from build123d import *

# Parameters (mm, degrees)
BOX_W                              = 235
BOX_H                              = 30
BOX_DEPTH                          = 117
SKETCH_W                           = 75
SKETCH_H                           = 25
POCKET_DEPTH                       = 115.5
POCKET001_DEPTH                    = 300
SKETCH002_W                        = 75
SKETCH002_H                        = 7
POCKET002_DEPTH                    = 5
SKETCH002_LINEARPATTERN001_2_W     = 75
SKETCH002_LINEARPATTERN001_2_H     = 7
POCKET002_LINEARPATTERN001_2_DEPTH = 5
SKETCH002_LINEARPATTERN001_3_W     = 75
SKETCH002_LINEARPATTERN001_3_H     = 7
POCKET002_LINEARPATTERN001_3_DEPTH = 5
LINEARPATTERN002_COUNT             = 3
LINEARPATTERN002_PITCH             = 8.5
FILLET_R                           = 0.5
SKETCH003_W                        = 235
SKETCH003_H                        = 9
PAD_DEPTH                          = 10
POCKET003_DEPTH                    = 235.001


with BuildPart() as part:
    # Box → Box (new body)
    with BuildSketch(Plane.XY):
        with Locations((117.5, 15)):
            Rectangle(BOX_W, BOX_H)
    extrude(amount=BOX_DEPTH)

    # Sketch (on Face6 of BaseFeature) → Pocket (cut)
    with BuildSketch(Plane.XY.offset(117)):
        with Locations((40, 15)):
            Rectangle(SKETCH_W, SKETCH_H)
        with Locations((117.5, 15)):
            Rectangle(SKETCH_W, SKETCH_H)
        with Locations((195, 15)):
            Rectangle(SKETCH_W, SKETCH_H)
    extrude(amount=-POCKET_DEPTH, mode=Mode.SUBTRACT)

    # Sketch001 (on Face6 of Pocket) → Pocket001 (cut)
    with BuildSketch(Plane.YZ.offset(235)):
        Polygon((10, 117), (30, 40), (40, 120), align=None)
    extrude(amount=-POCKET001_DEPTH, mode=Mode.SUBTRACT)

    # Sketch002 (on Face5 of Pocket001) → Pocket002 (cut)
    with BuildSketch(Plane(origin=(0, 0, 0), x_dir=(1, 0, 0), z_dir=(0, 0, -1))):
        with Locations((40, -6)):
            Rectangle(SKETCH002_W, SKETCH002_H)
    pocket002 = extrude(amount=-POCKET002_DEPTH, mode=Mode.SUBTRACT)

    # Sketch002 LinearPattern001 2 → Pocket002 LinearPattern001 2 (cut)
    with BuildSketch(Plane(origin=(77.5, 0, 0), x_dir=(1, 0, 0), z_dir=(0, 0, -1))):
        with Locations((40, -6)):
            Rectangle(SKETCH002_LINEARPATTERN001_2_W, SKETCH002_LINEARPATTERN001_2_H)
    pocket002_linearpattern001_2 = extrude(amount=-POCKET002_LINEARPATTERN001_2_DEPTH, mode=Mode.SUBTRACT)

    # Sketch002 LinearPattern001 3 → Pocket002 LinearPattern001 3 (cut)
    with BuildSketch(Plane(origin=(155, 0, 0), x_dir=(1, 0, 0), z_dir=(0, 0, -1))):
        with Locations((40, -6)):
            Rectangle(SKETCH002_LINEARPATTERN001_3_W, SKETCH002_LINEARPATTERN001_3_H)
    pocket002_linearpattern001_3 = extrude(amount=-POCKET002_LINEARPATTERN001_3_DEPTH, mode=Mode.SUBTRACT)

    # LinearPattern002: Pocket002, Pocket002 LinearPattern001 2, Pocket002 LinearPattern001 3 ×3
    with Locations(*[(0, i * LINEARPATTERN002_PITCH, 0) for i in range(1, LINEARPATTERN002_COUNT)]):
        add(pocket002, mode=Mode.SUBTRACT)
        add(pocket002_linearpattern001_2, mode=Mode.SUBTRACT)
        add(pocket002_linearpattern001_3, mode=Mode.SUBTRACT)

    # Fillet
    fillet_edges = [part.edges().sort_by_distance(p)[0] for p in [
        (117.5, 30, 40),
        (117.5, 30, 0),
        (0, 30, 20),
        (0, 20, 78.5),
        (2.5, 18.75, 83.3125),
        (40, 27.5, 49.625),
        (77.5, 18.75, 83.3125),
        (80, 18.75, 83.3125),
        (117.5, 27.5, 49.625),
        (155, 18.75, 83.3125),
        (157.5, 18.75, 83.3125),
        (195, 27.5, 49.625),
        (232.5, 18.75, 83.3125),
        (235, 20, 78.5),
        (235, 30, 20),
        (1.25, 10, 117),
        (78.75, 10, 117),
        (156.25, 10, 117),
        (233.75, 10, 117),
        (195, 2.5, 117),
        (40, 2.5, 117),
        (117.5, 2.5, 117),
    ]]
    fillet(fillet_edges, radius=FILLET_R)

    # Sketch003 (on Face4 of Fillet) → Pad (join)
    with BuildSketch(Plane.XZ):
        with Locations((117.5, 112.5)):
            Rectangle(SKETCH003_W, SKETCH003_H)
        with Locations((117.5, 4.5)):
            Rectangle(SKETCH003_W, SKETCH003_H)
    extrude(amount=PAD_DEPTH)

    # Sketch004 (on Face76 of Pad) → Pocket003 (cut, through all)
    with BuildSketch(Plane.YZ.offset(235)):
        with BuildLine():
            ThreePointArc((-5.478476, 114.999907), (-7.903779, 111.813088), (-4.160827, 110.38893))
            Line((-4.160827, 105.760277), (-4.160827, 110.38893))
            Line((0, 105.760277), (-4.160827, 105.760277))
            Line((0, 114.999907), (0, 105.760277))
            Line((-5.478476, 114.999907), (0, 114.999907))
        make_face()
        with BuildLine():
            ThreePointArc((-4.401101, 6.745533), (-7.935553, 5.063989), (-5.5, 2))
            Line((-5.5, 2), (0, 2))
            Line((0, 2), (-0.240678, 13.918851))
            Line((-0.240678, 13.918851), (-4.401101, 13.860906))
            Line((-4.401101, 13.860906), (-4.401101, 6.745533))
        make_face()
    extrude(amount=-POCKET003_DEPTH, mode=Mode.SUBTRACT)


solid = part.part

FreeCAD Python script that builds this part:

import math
import FreeCAD as App
import Part
import Sketcher


def edges_at(feature, points):
    """Names of the edges that pass closest to the given points."""
    edges = feature.Shape.Edges
    near = lambda p: min(range(len(edges)), key=lambda i: edges[i].distToShape(Part.Vertex(*p))[0])
    return sorted({f"Edge{near(p) + 1}" for p in points})

doc = App.newDocument("Part")
body = doc.addObject("PartDesign::Body", "Body")

# Sketch on XY plane
sketch1 = body.newObject("Sketcher::SketchObject", "Sketch")
sketch1.AttachmentSupport = (doc.getObject("XY_Plane"), [""])
sketch1.MapMode = "FlatFace"
sketch1.addGeometry([
    Part.LineSegment(App.Vector(0, 30, 0), App.Vector(0, 0, 0)),
    Part.LineSegment(App.Vector(0, 0, 0), App.Vector(235, 0, 0)),
    Part.LineSegment(App.Vector(235, 0, 0), App.Vector(235, 30, 0)),
    Part.LineSegment(App.Vector(235, 30, 0), App.Vector(0, 30, 0)),
], False)
sketch1.addConstraint([
    Sketcher.Constraint("Coincident", 0, 2, 1, 1),
    Sketcher.Constraint("Coincident", 1, 2, 2, 1),
    Sketcher.Constraint("Coincident", 2, 2, 3, 1),
    Sketcher.Constraint("Coincident", 3, 2, 0, 1),
    Sketcher.Constraint("Vertical", 0),
    Sketcher.Constraint("Horizontal", 1),
    Sketcher.Constraint("Vertical", 2),
    Sketcher.Constraint("Horizontal", 3),
    Sketcher.Constraint("Coincident", 0, 2, -1, 1),
    Sketcher.Constraint("DistanceX", 1, 1, 1, 2, 235.0),
    Sketcher.Constraint("DistanceY", 0, 2, 0, 1, 30.0),
])
pad1 = body.newObject("PartDesign::Pad", "Pad")
pad1.Profile = sketch1
pad1.Length = 117

# Sketch on XY plane
sketch2 = body.newObject("Sketcher::SketchObject", "Sketch001")
sketch2.AttachmentSupport = (doc.getObject("XY_Plane"), [""])
sketch2.MapMode = "FlatFace"
sketch2.AttachmentOffset = App.Placement(App.Vector(0, 0, 117), App.Rotation())
sketch2.addGeometry([
    Part.LineSegment(App.Vector(2, 28, 0), App.Vector(2, 2, 0)),  # 0
    Part.LineSegment(App.Vector(2, 2, 0), App.Vector(78, 2, 0)),  # 1
    Part.LineSegment(App.Vector(78, 2, 0), App.Vector(78, 28, 0)),  # 2
    Part.LineSegment(App.Vector(78, 28, 0), App.Vector(2, 28, 0)),  # 3
    Part.LineSegment(App.Vector(80, 28, 0), App.Vector(80, 2, 0)),  # 4
    Part.LineSegment(App.Vector(80, 2, 0), App.Vector(155, 2, 0)),  # 5
    Part.LineSegment(App.Vector(155, 2, 0), App.Vector(155, 28, 0)),  # 6
    Part.LineSegment(App.Vector(155, 28, 0), App.Vector(80, 28, 0)),  # 7
    Part.LineSegment(App.Vector(158, 28, 0), App.Vector(158, 2, 0)),  # 8
    Part.LineSegment(App.Vector(158, 2, 0), App.Vector(232, 2, 0)),  # 9
    Part.LineSegment(App.Vector(232, 2, 0), App.Vector(232, 28, 0)),  # 10
    Part.LineSegment(App.Vector(232, 28, 0), App.Vector(158, 28, 0)),  # 11
], False)
sketch2.addConstraint([
    Sketcher.Constraint("Coincident", 0, 2, 1, 1),
    Sketcher.Constraint("Coincident", 1, 2, 2, 1),
    Sketcher.Constraint("Coincident", 2, 2, 3, 1),
    Sketcher.Constraint("Coincident", 3, 2, 0, 1),
    Sketcher.Constraint("Coincident", 4, 2, 5, 1),
    Sketcher.Constraint("Coincident", 5, 2, 6, 1),
    Sketcher.Constraint("Coincident", 6, 2, 7, 1),
    Sketcher.Constraint("Coincident", 7, 2, 4, 1),
    Sketcher.Constraint("Coincident", 8, 2, 9, 1),
    Sketcher.Constraint("Coincident", 9, 2, 10, 1),
    Sketcher.Constraint("Coincident", 10, 2, 11, 1),
    Sketcher.Constraint("Coincident", 11, 2, 8, 1),
    Sketcher.Constraint("Vertical", 0),
    Sketcher.Constraint("Horizontal", 1),
    Sketcher.Constraint("Vertical", 2),
    Sketcher.Constraint("Horizontal", 3),
    Sketcher.Constraint("Vertical", 4),
    Sketcher.Constraint("Horizontal", 5),
    Sketcher.Constraint("Vertical", 6),
    Sketcher.Constraint("Horizontal", 7),
    Sketcher.Constraint("Vertical", 8),
    Sketcher.Constraint("Horizontal", 9),
    Sketcher.Constraint("Vertical", 10),
    Sketcher.Constraint("Horizontal", 11),
    Sketcher.Constraint("Horizontal", 1, 2, 4, 2),
    Sketcher.Constraint("Horizontal", 3, 2, 6, 2),
    Sketcher.Constraint("Horizontal", 5, 2, 8, 2),
    Sketcher.Constraint("Horizontal", 7, 2, 10, 2),
    Sketcher.Constraint("Equal", 3, 5),
    Sketcher.Constraint("Equal", 7, 9),
    Sketcher.Constraint("DistanceX", 1, 1, 1, 2, 75.0),
    Sketcher.Constraint("DistanceY", 0, 2, 0, 1, 25.0),
    Sketcher.Constraint("DistanceX", -1, 1, 4, 2, 80.0),
    Sketcher.Constraint("DistanceX", 1, 2, 8, 2, 80.0),
    Sketcher.Constraint("DistanceX", -1, 1, 0, 2, 2.5),
    Sketcher.Constraint("DistanceY", -1, 1, 0, 2, 2.5),
])
pocket1 = body.newObject("PartDesign::Pocket", "Pocket")
pocket1.Profile = sketch2
pocket1.Length = 115.5

# Sketch on YZ plane
sketch3 = body.newObject("Sketcher::SketchObject", "Sketch002")
sketch3.AttachmentSupport = (doc.getObject("YZ_Plane"), [""])
sketch3.MapMode = "FlatFace"
sketch3.AttachmentOffset = App.Placement(App.Vector(0, 0, 235), App.Rotation())
sketch3.addGeometry([
    Part.LineSegment(App.Vector(10, 117, 0), App.Vector(30, 40, 0)),
    Part.LineSegment(App.Vector(30, 40, 0), App.Vector(40, 120, 0)),
    Part.LineSegment(App.Vector(40, 120, 0), App.Vector(10, 117, 0)),
], False)
sketch3.addConstraint([
    Sketcher.Constraint("Coincident", 0, 2, 1, 1),
    Sketcher.Constraint("Coincident", 1, 2, 2, 1),
    Sketcher.Constraint("Coincident", 2, 2, 0, 1),
    Sketcher.Constraint("DistanceX", -1, 1, 0, 2, 30.0),
    Sketcher.Constraint("DistanceY", -1, 1, 0, 2, 40.0),
    Sketcher.Constraint("DistanceX", -1, 1, 1, 2, 40.0),
    Sketcher.Constraint("DistanceY", -1, 1, 1, 2, 120.0),
    Sketcher.Constraint("DistanceX", -1, 1, 2, 2, 10.0),
    Sketcher.Constraint("DistanceY", -1, 1, 2, 2, 117.0),
])
pocket2 = body.newObject("PartDesign::Pocket", "Pocket001")
pocket2.Profile = sketch3
pocket2.Length = 300

# Sketch on XY plane
sketch4 = body.newObject("Sketcher::SketchObject", "Sketch003")
sketch4.AttachmentSupport = (doc.getObject("XY_Plane"), [""])
sketch4.MapMode = "FlatFace"
sketch4.addGeometry([
    Part.LineSegment(App.Vector(2, 2, 0), App.Vector(2, 10, 0)),
    Part.LineSegment(App.Vector(2, 10, 0), App.Vector(78, 10, 0)),
    Part.LineSegment(App.Vector(78, 10, 0), App.Vector(78, 2, 0)),
    Part.LineSegment(App.Vector(78, 2, 0), App.Vector(2, 2, 0)),
], False)
sketch4.addConstraint([
    Sketcher.Constraint("Coincident", 0, 2, 1, 1),
    Sketcher.Constraint("Coincident", 1, 2, 2, 1),
    Sketcher.Constraint("Coincident", 2, 2, 3, 1),
    Sketcher.Constraint("Coincident", 3, 2, 0, 1),
    Sketcher.Constraint("Vertical", 0),
    Sketcher.Constraint("Horizontal", 1),
    Sketcher.Constraint("Vertical", 2),
    Sketcher.Constraint("Horizontal", 3),
    Sketcher.Constraint("DistanceX", 1, 1, 1, 2, 75.0),
    Sketcher.Constraint("DistanceY", 0, 1, 0, 2, 7.0),
    Sketcher.Constraint("DistanceX", -1, 1, 0, 2, 2.5),
    Sketcher.Constraint("DistanceY", -1, 1, 0, 2, 9.5),
])
pocket3 = body.newObject("PartDesign::Pocket", "Pocket002")
pocket3.Profile = sketch4
pocket3.Length = 5
pocket3.Reversed = True

# Sketch on XY plane
sketch5 = body.newObject("Sketcher::SketchObject", "Sketch004")
sketch5.AttachmentSupport = (doc.getObject("XY_Plane"), [""])
sketch5.MapMode = "FlatFace"
sketch5.addGeometry([
    Part.LineSegment(App.Vector(80, 2, 0), App.Vector(80, 10, 0)),
    Part.LineSegment(App.Vector(80, 10, 0), App.Vector(155, 10, 0)),
    Part.LineSegment(App.Vector(155, 10, 0), App.Vector(155, 2, 0)),
    Part.LineSegment(App.Vector(155, 2, 0), App.Vector(80, 2, 0)),
], False)
sketch5.addConstraint([
    Sketcher.Constraint("Coincident", 0, 2, 1, 1),
    Sketcher.Constraint("Coincident", 1, 2, 2, 1),
    Sketcher.Constraint("Coincident", 2, 2, 3, 1),
    Sketcher.Constraint("Coincident", 3, 2, 0, 1),
    Sketcher.Constraint("Vertical", 0),
    Sketcher.Constraint("Horizontal", 1),
    Sketcher.Constraint("Vertical", 2),
    Sketcher.Constraint("Horizontal", 3),
    Sketcher.Constraint("DistanceX", 1, 1, 1, 2, 75.0),
    Sketcher.Constraint("DistanceY", 0, 1, 0, 2, 7.0),
    Sketcher.Constraint("DistanceX", -1, 1, 0, 2, 80.0),
    Sketcher.Constraint("DistanceY", -1, 1, 0, 2, 9.5),
])
pocket4 = body.newObject("PartDesign::Pocket", "Pocket003")
pocket4.Profile = sketch5
pocket4.Length = 5
pocket4.Reversed = True

# Sketch on XY plane
sketch6 = body.newObject("Sketcher::SketchObject", "Sketch005")
sketch6.AttachmentSupport = (doc.getObject("XY_Plane"), [""])
sketch6.MapMode = "FlatFace"
sketch6.addGeometry([
    Part.LineSegment(App.Vector(158, 2, 0), App.Vector(158, 10, 0)),
    Part.LineSegment(App.Vector(158, 10, 0), App.Vector(232, 10, 0)),
    Part.LineSegment(App.Vector(232, 10, 0), App.Vector(232, 2, 0)),
    Part.LineSegment(App.Vector(232, 2, 0), App.Vector(158, 2, 0)),
], False)
sketch6.addConstraint([
    Sketcher.Constraint("Coincident", 0, 2, 1, 1),
    Sketcher.Constraint("Coincident", 1, 2, 2, 1),
    Sketcher.Constraint("Coincident", 2, 2, 3, 1),
    Sketcher.Constraint("Coincident", 3, 2, 0, 1),
    Sketcher.Constraint("Vertical", 0),
    Sketcher.Constraint("Horizontal", 1),
    Sketcher.Constraint("Vertical", 2),
    Sketcher.Constraint("Horizontal", 3),
    Sketcher.Constraint("DistanceX", 1, 1, 1, 2, 75.0),
    Sketcher.Constraint("DistanceY", 0, 1, 0, 2, 7.0),
    Sketcher.Constraint("DistanceX", -1, 1, 0, 2, 157.5),
    Sketcher.Constraint("DistanceY", -1, 1, 0, 2, 9.5),
])
pocket5 = body.newObject("PartDesign::Pocket", "Pocket004")
pocket5.Profile = sketch6
pocket5.Length = 5
pocket5.Reversed = True
doc.recompute()

linearpattern = body.newObject("PartDesign::LinearPattern", "LinearPattern")
linearpattern.Originals = [pocket3, pocket4, pocket5]
linearpattern.Direction = (doc.getObject("Y_Axis"), [""])
linearpattern.Mode = "offset"
linearpattern.Offset = 8.5
linearpattern.Occurrences = 3
body.Tip = linearpattern
doc.recompute()

fillet = body.newObject("PartDesign::Fillet", "Fillet")
fillet.Base = (linearpattern, edges_at(linearpattern, [
    (117.5, 30, 40),
    (117.5, 30, 0),
    (0, 30, 20),
    (0, 20, 78.5),
    (2.5, 18.75, 83.312),
    (40, 27.5, 49.625),
    (77.5, 18.75, 83.312),
    (80, 18.75, 83.312),
    (117.5, 27.5, 49.625),
    (155, 18.75, 83.312),
    (157.5, 18.75, 83.312),
    (195, 27.5, 49.625),
    (232.5, 18.75, 83.312),
    (235, 20, 78.5),
    (235, 30, 20),
    (1.25, 10, 117),
    (78.75, 10, 117),
    (156.25, 10, 117),
    (233.75, 10, 117),
    (195, 2.5, 117),
    (40, 2.5, 117),
    (117.5, 2.5, 117),
]))
fillet.Radius = 0.5

# Sketch on XZ plane
sketch7 = body.newObject("Sketcher::SketchObject", "Sketch006")
sketch7.AttachmentSupport = (doc.getObject("XZ_Plane"), [""])
sketch7.MapMode = "FlatFace"
sketch7.addGeometry([
    Part.LineSegment(App.Vector(0, 117, 0), App.Vector(0, 108, 0)),  # 0
    Part.LineSegment(App.Vector(0, 108, 0), App.Vector(235, 108, 0)),  # 1
    Part.LineSegment(App.Vector(235, 108, 0), App.Vector(235, 117, 0)),  # 2
    Part.LineSegment(App.Vector(235, 117, 0), App.Vector(0, 117, 0)),  # 3
    Part.LineSegment(App.Vector(0, 9, 0), App.Vector(0, 0, 0)),  # 4
    Part.LineSegment(App.Vector(0, 0, 0), App.Vector(235, 0, 0)),  # 5
    Part.LineSegment(App.Vector(235, 0, 0), App.Vector(235, 9, 0)),  # 6
    Part.LineSegment(App.Vector(235, 9, 0), App.Vector(0, 9, 0)),  # 7
], False)
sketch7.addConstraint([
    Sketcher.Constraint("Coincident", 0, 2, 1, 1),
    Sketcher.Constraint("Coincident", 1, 2, 2, 1),
    Sketcher.Constraint("Coincident", 2, 2, 3, 1),
    Sketcher.Constraint("Coincident", 3, 2, 0, 1),
    Sketcher.Constraint("Coincident", 4, 2, 5, 1),
    Sketcher.Constraint("Coincident", 5, 2, 6, 1),
    Sketcher.Constraint("Coincident", 6, 2, 7, 1),
    Sketcher.Constraint("Coincident", 7, 2, 4, 1),
    Sketcher.Constraint("Vertical", 0),
    Sketcher.Constraint("Horizontal", 1),
    Sketcher.Constraint("Vertical", 2),
    Sketcher.Constraint("Horizontal", 3),
    Sketcher.Constraint("Vertical", 4),
    Sketcher.Constraint("Horizontal", 5),
    Sketcher.Constraint("Vertical", 6),
    Sketcher.Constraint("Horizontal", 7),
    Sketcher.Constraint("Coincident", 4, 2, -1, 1),
    Sketcher.Constraint("PointOnObject", 0, 2, -2),
    Sketcher.Constraint("Vertical", 2, 2, 5, 2),
    Sketcher.Constraint("Equal", 2, 4),
    Sketcher.Constraint("DistanceX", 1, 1, 1, 2, 235.0),
    Sketcher.Constraint("DistanceY", 0, 2, 0, 1, 9.0),
    Sketcher.Constraint("DistanceY", -1, 1, 0, 2, 108.0),
])
pad2 = body.newObject("PartDesign::Pad", "Pad001")
pad2.Profile = sketch7
pad2.Length = 10

# Sketch on YZ plane
sketch8 = body.newObject("Sketcher::SketchObject", "Sketch007")
sketch8.AttachmentSupport = (doc.getObject("YZ_Plane"), [""])
sketch8.MapMode = "FlatFace"
sketch8.AttachmentOffset = App.Placement(App.Vector(0, 0, 235), App.Rotation())
sketch8.addGeometry([
    Part.ArcOfCircle(Part.Circle(App.Vector(-5.5, 112.5, 0), App.Vector(0, 0, 1), 2.5), math.radians(90), math.radians(302)),  # 0
    Part.LineSegment(App.Vector(-4.2, 110.4, 0), App.Vector(-4.2, 105.8, 0)),  # 1
    Part.LineSegment(App.Vector(-4.2, 105.8, 0), App.Vector(0, 105.8, 0)),  # 2
    Part.LineSegment(App.Vector(0, 105.8, 0), App.Vector(0, 115, 0)),  # 3
    Part.LineSegment(App.Vector(0, 115, 0), App.Vector(-5.5, 115, 0)),  # 4
    Part.ArcOfCircle(Part.Circle(App.Vector(-5.5, 4.5, 0), App.Vector(0, 0, 1), 2.5), math.radians(64), math.radians(270)),  # 5
    Part.LineSegment(App.Vector(-5.5, 2, 0), App.Vector(0, 2, 0)),  # 6
    Part.LineSegment(App.Vector(0, 2, 0), App.Vector(-0.2, 13.9, 0)),  # 7
    Part.LineSegment(App.Vector(-0.2, 13.9, 0), App.Vector(-4.4, 13.9, 0)),  # 8
    Part.LineSegment(App.Vector(-4.4, 13.9, 0), App.Vector(-4.4, 6.7, 0)),  # 9
], False)
sketch8.addConstraint([
    Sketcher.Constraint("Coincident", 0, 2, 1, 1),
    Sketcher.Constraint("Coincident", 1, 2, 2, 1),
    Sketcher.Constraint("Coincident", 2, 2, 3, 1),
    Sketcher.Constraint("Coincident", 3, 2, 4, 1),
    Sketcher.Constraint("Coincident", 4, 2, 0, 1),
    Sketcher.Constraint("Tangent", 5, 2, 6, 1),
    Sketcher.Constraint("Coincident", 6, 2, 7, 1),
    Sketcher.Constraint("Coincident", 7, 2, 8, 1),
    Sketcher.Constraint("Coincident", 8, 2, 9, 1),
    Sketcher.Constraint("Coincident", 9, 2, 5, 1),
    Sketcher.Constraint("Vertical", 1),
    Sketcher.Constraint("Horizontal", 2),
    Sketcher.Constraint("Vertical", 3),
    Sketcher.Constraint("Horizontal", 4),
    Sketcher.Constraint("Horizontal", 6),
    Sketcher.Constraint("Vertical", 9),
    Sketcher.Constraint("Equal", 0, 5),
    Sketcher.Constraint("PointOnObject", 2, 2, -2),
    Sketcher.Constraint("PointOnObject", 6, 2, -2),
    Sketcher.Constraint("Vertical", 0, 3, 5, 3),
    Sketcher.Constraint("Radius", 0, 2.5),
    Sketcher.Constraint("DistanceX", 6, 1, 6, 2, 5.5),
    Sketcher.Constraint("DistanceY", -1, 1, 5, 2, 2.0),
    Sketcher.Constraint("DistanceY", 5, 3, 0, 3, 108.0),
    Sketcher.Constraint("DistanceY", 3, 1, 3, 2, 9.23963),
    Sketcher.Constraint("DistanceX", 8, 2, -1, 1, 4.401101),
    Sketcher.Constraint("Distance", 7, 11.921281),
    Sketcher.Constraint("DistanceX", 2, 1, 2, 2, 4.160827),
    Sketcher.Constraint("DistanceX", 4, 2, 4, 1, 5.478476),
    Sketcher.Constraint("DistanceY", 9, 2, 9, 1, 7.115373),
    Sketcher.Constraint("DistanceY", -1, 1, 7, 2, 13.918851),
])
pocket6 = body.newObject("PartDesign::Pocket", "Pocket005")
pocket6.Profile = sketch8
pocket6.Type = "ThroughAll"

doc.recompute()
